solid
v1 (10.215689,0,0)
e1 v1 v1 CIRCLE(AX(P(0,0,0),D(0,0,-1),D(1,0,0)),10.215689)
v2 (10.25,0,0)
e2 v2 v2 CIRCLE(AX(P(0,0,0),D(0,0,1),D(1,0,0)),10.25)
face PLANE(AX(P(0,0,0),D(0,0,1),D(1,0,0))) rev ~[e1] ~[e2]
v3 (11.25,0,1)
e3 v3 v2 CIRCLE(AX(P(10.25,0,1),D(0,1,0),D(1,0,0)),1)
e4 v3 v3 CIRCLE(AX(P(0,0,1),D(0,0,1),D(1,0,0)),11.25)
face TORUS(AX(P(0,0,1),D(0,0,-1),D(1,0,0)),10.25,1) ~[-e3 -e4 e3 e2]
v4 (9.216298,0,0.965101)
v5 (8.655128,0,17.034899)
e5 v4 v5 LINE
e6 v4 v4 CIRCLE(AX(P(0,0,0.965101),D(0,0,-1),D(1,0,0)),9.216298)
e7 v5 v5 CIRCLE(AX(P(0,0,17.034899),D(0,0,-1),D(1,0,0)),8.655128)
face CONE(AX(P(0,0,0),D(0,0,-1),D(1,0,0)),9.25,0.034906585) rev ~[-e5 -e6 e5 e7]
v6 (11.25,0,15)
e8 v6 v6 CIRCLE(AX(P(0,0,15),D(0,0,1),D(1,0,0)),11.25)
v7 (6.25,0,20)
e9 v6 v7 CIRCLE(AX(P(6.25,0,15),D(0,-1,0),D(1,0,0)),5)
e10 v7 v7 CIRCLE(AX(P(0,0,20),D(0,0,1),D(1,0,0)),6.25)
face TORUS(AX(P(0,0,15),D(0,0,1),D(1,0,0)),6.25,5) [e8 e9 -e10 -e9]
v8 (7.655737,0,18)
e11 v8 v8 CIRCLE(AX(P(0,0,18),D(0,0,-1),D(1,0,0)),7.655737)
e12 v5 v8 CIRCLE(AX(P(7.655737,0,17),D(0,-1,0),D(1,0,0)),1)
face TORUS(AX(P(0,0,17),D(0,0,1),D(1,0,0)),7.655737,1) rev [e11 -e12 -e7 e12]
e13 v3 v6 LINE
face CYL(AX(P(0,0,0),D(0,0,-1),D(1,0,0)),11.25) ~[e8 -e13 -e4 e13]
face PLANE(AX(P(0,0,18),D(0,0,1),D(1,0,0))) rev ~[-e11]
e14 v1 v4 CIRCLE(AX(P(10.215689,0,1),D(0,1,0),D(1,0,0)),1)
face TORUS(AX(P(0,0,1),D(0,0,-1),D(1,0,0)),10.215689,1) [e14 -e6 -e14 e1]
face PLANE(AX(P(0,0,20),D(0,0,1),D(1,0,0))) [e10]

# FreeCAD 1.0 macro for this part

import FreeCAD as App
import Part
import Sketcher
from FreeCAD import Vector


def edges_at(feature, points):
    """Names of the edges that pass closest to the given points."""
    edges = feature.Shape.Edges
    near = lambda p: min(range(len(edges)), key=lambda i: edges[i].distToShape(Part.Vertex(*p))[0])
    return sorted({f"Edge{near(p) + 1}" for p in points})

doc = App.newDocument("Part")
params = doc.addObject("Spreadsheet::Sheet", "Params")
for row, (alias, value) in enumerate([
    ("sketch1_diameter", "22.5 mm"),
    ("pad1_length", "20 mm"),
    ("sketch2_diameter", "18.5 mm"),
    ("pocket1_length", "18 mm"),
    ("pocket1_taper", "-2 deg"),
    ("fillet_radius", "5 mm"),
    ("fillet2_radius", "1 mm"),
], start=1):
    params.set(f"A{row}", alias)
    params.set(f"B{row}", "=" + value)
    params.setAlias(f"B{row}", alias)

body = doc.addObject("PartDesign::Body", "Body")

sketch1 = doc.addObject("Sketcher::SketchObject", "Sketch")
body.addObject(sketch1)
sketch1.AttachmentSupport = (doc.XY_Plane, [""])
sketch1.MapMode = "FlatFace"
sketch1.addGeometry(Part.Circle(Vector(0, 0, 0), Vector(0, 0, 1), 11.25), False)
sketch1.addConstraint(Sketcher.Constraint("Coincident", 0, 3, -1, 1))
sketch1.addConstraint(Sketcher.Constraint("Diameter", 0, 22.5))
sketch1.setExpression("Constraints[1]", "Params.sketch1_diameter")
pad1 = doc.addObject("PartDesign::Pad", "Pad")
body.addObject(pad1)
pad1.Profile = sketch1
pad1.setExpression("Length", "Params.pad1_length")

sketch2 = doc.addObject("Sketcher::SketchObject", "Sketch001")
body.addObject(sketch2)
sketch2.AttachmentSupport = (doc.XY_Plane, [""])
sketch2.MapMode = "FlatFace"
sketch2.addGeometry(Part.Circle(Vector(0, 0, 0), Vector(0, 0, 1), 9.25), False)
sketch2.addConstraint(Sketcher.Constraint("Coincident", 0, 3, -1, 1))
sketch2.addConstraint(Sketcher.Constraint("Diameter", 0, 18.5))
sketch2.setExpression("Constraints[1]", "Params.sketch2_diameter")
pocket1 = doc.addObject("PartDesign::Pocket", "Pocket")
body.addObject(pocket1)
pocket1.Profile = sketch2
pocket1.setExpression("Length", "Params.pocket1_length")
pocket1.Reversed = True
pocket1.setExpression("TaperAngle", "Params.pocket1_taper")
doc.recompute()

fillet = doc.addObject("PartDesign::Fillet", "Fillet")
body.addObject(fillet)
fillet.Base = (pocket1, edges_at(pocket1, [(-11.25, 0, 20)]))
fillet.setExpression("Radius", "Params.fillet_radius")
doc.recompute()

fillet2 = doc.addObject("PartDesign::Fillet", "Fillet001")
body.addObject(fillet2)
fillet2.Base = (fillet, ["Edge1"])
fillet2.UseAllEdges = True
fillet2.setExpression("Radius", "Params.fillet2_radius")

doc.recompute()
